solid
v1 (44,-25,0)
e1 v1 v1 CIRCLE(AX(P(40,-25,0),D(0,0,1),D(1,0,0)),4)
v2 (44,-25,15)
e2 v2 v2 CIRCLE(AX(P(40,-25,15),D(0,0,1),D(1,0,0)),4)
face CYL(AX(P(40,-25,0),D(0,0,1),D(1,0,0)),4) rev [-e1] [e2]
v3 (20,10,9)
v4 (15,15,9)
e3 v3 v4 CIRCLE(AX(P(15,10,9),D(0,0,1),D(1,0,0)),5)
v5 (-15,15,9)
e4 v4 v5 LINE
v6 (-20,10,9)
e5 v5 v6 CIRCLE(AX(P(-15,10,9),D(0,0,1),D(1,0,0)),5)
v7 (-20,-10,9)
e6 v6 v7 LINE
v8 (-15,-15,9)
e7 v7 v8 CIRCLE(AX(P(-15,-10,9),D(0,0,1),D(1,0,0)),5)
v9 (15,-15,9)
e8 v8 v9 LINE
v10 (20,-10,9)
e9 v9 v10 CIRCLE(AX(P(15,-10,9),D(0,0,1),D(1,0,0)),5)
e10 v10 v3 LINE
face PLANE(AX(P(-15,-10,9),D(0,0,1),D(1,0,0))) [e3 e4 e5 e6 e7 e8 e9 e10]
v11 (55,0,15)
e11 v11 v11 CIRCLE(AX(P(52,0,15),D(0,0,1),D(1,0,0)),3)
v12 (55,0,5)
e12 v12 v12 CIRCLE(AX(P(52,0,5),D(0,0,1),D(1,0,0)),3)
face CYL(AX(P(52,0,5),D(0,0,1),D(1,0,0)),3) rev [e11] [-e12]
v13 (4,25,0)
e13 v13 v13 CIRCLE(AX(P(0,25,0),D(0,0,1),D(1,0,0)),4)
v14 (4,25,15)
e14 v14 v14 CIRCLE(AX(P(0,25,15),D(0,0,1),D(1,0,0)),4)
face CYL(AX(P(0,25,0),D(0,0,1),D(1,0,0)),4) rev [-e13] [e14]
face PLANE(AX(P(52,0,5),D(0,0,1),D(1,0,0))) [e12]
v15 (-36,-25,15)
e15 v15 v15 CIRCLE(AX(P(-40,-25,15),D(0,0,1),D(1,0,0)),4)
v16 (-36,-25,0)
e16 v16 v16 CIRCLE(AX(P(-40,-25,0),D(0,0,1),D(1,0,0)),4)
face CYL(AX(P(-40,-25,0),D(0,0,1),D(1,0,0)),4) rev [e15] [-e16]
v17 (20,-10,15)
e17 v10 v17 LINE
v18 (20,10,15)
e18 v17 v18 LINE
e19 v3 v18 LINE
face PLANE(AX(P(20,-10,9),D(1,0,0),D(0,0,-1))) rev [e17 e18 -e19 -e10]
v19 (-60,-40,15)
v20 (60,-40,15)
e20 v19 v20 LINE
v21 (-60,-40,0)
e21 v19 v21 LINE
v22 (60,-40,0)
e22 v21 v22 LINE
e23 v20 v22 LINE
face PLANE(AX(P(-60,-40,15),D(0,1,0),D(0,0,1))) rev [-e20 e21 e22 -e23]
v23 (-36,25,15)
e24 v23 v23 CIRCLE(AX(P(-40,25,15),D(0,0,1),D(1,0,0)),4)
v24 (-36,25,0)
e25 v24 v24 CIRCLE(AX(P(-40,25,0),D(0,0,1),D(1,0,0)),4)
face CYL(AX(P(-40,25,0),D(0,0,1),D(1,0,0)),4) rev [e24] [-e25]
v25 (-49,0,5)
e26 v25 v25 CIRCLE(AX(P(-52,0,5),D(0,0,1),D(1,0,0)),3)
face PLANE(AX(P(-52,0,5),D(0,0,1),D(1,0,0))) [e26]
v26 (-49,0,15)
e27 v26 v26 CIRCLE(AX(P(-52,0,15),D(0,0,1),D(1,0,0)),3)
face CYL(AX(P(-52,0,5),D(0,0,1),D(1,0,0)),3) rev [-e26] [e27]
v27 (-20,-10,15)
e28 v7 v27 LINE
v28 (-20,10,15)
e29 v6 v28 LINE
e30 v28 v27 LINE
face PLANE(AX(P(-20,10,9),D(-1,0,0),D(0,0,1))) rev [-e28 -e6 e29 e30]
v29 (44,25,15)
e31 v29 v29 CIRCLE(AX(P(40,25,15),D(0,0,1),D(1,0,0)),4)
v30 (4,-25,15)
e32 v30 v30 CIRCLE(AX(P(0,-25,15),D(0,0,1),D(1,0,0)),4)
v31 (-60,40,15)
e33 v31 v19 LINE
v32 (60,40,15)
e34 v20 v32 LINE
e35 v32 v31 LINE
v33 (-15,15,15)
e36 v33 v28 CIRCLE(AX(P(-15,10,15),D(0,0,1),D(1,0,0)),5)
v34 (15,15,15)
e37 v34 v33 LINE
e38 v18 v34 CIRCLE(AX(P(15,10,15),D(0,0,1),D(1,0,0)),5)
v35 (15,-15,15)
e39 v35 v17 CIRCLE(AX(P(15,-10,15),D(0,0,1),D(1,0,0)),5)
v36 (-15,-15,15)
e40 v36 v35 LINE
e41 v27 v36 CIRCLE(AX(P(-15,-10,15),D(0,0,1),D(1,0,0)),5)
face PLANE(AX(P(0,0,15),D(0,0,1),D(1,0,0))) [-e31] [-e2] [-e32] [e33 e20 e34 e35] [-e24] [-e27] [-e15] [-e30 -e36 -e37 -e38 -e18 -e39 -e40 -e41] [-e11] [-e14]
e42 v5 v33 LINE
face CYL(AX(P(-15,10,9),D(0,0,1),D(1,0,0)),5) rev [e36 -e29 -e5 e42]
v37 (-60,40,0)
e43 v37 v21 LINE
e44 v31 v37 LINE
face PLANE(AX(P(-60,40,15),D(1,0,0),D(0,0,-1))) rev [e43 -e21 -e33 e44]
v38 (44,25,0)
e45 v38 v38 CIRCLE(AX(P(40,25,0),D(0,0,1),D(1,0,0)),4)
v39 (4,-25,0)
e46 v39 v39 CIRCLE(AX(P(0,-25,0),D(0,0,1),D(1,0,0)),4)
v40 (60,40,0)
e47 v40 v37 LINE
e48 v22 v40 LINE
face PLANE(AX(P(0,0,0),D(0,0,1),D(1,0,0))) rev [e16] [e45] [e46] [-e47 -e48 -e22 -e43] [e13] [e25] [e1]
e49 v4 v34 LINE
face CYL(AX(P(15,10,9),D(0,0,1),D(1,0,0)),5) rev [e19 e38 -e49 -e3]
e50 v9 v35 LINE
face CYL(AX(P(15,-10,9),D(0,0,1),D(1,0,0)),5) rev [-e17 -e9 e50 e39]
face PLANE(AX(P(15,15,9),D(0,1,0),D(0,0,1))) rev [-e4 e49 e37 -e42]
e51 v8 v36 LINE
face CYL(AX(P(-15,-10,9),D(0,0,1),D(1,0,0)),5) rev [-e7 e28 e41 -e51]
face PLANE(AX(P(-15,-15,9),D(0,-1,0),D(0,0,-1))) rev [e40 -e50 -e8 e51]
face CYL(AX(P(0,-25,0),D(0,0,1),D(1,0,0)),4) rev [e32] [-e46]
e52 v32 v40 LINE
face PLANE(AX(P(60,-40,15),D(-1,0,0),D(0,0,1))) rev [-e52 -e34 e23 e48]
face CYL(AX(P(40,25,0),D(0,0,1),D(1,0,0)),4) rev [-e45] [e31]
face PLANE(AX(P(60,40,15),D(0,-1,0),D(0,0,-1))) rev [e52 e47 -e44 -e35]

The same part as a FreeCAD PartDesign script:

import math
import FreeCAD as App
import Part
import Sketcher

V = App.Vector


def add_polygon(sketch, points):
    """Adds a closed chain of lines whose ends are joined by coincident constraints."""
    first, n = sketch.GeometryCount, len(points)
    for a, b in zip(points, points[1:] + points[:1]):
        sketch.addGeometry(Part.LineSegment(App.Vector(*a, 0), App.Vector(*b, 0)), False)
    for i in range(n):
        sketch.addConstraint(Sketcher.Constraint("Coincident", first + i, 2, first + (i + 1) % n, 1))

doc = App.newDocument("Part")
body = doc.addObject("PartDesign::Body", "Body")

sketch1 = doc.addObject("Sketcher::SketchObject", "Sketch")
body.addObject(sketch1)
sketch1.AttachmentSupport = (doc.XY_Plane, [""])
sketch1.MapMode = "FlatFace"
add_polygon(sketch1, [(-60, 40), (-60, -40), (60, -40), (60, 40)])
sketch1.addConstraint([
    Sketcher.Constraint("Vertical", 0),
    Sketcher.Constraint("Horizontal", 1),
    Sketcher.Constraint("Vertical", 2),
    Sketcher.Constraint("Horizontal", 3),
    Sketcher.Constraint("Symmetric", 0, 2, 2, 2, -1, 1),
    Sketcher.Constraint("DistanceX", 1, 1, 1, 2, 120.0),
    Sketcher.Constraint("DistanceY", 0, 2, 0, 1, 80.0),
])
pad1 = doc.addObject("PartDesign::Pad", "Pad")
body.addObject(pad1)
pad1.Profile = sketch1
pad1.Length = 15

sketch2 = doc.addObject("Sketcher::SketchObject", "Sketch001")
body.addObject(sketch2)
sketch2.AttachmentSupport = (doc.XY_Plane, [""])
sketch2.MapMode = "FlatFace"
sketch2.AttachmentOffset = App.Placement(V(0, 0, 15), App.Rotation())
sketch2.addGeometry([
    Part.LineSegment(V(-15, -15, 0), V(15, -15, 0)),
    Part.ArcOfCircle(Part.Circle(V(15, -10, 0), V(0, 0, 1), 5), math.radians(-90), math.radians(0)),
    Part.LineSegment(V(20, -10, 0), V(20, 10, 0)),
    Part.ArcOfCircle(Part.Circle(V(15, 10, 0), V(0, 0, 1), 5), math.radians(0), math.radians(90)),
    Part.LineSegment(V(15, 15, 0), V(-15, 15, 0)),
    Part.ArcOfCircle(Part.Circle(V(-15, 10, 0), V(0, 0, 1), 5), math.radians(90), math.radians(180)),
    Part.LineSegment(V(-20, 10, 0), V(-20, -10, 0)),
    Part.ArcOfCircle(Part.Circle(V(-15, -10, 0), V(0, 0, 1), 5), math.radians(180), math.radians(270)),
], False)
sketch2.addConstraint([
    Sketcher.Constraint("Tangent", 0, 2, 1, 1),
    Sketcher.Constraint("Tangent", 1, 2, 2, 1),
    Sketcher.Constraint("Tangent", 2, 2, 3, 1),
    Sketcher.Constraint("Tangent", 3, 2, 4, 1),
    Sketcher.Constraint("Tangent", 4, 2, 5, 1),
    Sketcher.Constraint("Tangent", 5, 2, 6, 1),
    Sketcher.Constraint("Tangent", 6, 2, 7, 1),
    Sketcher.Constraint("Tangent", 7, 2, 0, 1),
    Sketcher.Constraint("Horizontal", 0),
    Sketcher.Constraint("Vertical", 2),
    Sketcher.Constraint("Horizontal", 4),
    Sketcher.Constraint("Vertical", 6),
    Sketcher.Constraint("Equal", 1, 3),
    Sketcher.Constraint("Equal", 3, 5),
    Sketcher.Constraint("Equal", 5, 7),
    Sketcher.Constraint("Symmetric", 1, 3, 5, 3, -1, 1),
    Sketcher.Constraint("Radius", 1, 5.0),
    Sketcher.Constraint("DistanceX", 0, 1, 0, 2, 30.0),
    Sketcher.Constraint("DistanceY", 2, 1, 2, 2, 20.0),
])
pocket1 = doc.addObject("PartDesign::Pocket", "Pocket")
body.addObject(pocket1)
pocket1.Profile = sketch2
pocket1.Length = 6

sketch3 = doc.addObject("Sketcher::SketchObject", "Sketch002")
body.addObject(sketch3)
sketch3.AttachmentSupport = (doc.XY_Plane, [""])
sketch3.MapMode = "FlatFace"
sketch3.AttachmentOffset = App.Placement(V(0, 0, 15), App.Rotation())
sketch3.addGeometry([
    Part.Circle(V(0, 25, 0), V(0, 0, 1), 4),
    Part.Circle(V(0, -25, 0), V(0, 0, 1), 4),
    Part.Circle(V(40, 25, 0), V(0, 0, 1), 4),
    Part.Circle(V(40, -25, 0), V(0, 0, 1), 4),
    Part.Circle(V(-40, 25, 0), V(0, 0, 1), 4),
    Part.Circle(V(-40, -25, 0), V(0, 0, 1), 4),
], False)
sketch3.addConstraint([
    Sketcher.Constraint("Equal", 0, 1),
    Sketcher.Constraint("Equal", 1, 2),
    Sketcher.Constraint("Equal", 2, 3),
    Sketcher.Constraint("Equal", 3, 4),
    Sketcher.Constraint("Equal", 4, 5),
    Sketcher.Constraint("Symmetric", 0, 3, 1, 3, -1, 1),
    Sketcher.Constraint("Symmetric", 3, 3, 4, 3, -1, 1),
    Sketcher.Constraint("Symmetric", 2, 3, 5, 3, -1, 1),
    Sketcher.Constraint("Symmetric", 2, 3, 4, 3, -2),
    Sketcher.Constraint("PointOnObject", 0, 3, -2),
    Sketcher.Constraint("Horizontal", 0, 3, 2, 3),
    Sketcher.Constraint("Diameter", 0, 8.0),
    Sketcher.Constraint("DistanceY", -1, 1, 0, 3, 25.0),
    Sketcher.Constraint("DistanceX", -1, 1, 2, 3, 40.0),
])
pocket2 = doc.addObject("PartDesign::Pocket", "Pocket001")
body.addObject(pocket2)
pocket2.Profile = sketch3
pocket2.Type = "ThroughAll"

sketch4 = doc.addObject("Sketcher::SketchObject", "Sketch003")
body.addObject(sketch4)
sketch4.AttachmentSupport = (doc.XY_Plane, [""])
sketch4.MapMode = "FlatFace"
sketch4.AttachmentOffset = App.Placement(V(0, 0, 15), App.Rotation())
sketch4.addGeometry([
    Part.Circle(V(52, 0, 0), V(0, 0, 1), 3),
    Part.Circle(V(-52, 0, 0), V(0, 0, 1), 3),
], False)
sketch4.addConstraint([
    Sketcher.Constraint("Equal", 0, 1),
    Sketcher.Constraint("Symmetric", 0, 3, 1, 3, -1, 1),
    Sketcher.Constraint("PointOnObject", 0, 3, -1),
    Sketcher.Constraint("Diameter", 0, 6.0),
    Sketcher.Constraint("DistanceX", -1, 1, 0, 3, 52.0),
])
pocket3 = doc.addObject("PartDesign::Pocket", "Pocket002")
body.addObject(pocket3)
pocket3.Profile = sketch4
pocket3.Length = 10

doc.recompute()
